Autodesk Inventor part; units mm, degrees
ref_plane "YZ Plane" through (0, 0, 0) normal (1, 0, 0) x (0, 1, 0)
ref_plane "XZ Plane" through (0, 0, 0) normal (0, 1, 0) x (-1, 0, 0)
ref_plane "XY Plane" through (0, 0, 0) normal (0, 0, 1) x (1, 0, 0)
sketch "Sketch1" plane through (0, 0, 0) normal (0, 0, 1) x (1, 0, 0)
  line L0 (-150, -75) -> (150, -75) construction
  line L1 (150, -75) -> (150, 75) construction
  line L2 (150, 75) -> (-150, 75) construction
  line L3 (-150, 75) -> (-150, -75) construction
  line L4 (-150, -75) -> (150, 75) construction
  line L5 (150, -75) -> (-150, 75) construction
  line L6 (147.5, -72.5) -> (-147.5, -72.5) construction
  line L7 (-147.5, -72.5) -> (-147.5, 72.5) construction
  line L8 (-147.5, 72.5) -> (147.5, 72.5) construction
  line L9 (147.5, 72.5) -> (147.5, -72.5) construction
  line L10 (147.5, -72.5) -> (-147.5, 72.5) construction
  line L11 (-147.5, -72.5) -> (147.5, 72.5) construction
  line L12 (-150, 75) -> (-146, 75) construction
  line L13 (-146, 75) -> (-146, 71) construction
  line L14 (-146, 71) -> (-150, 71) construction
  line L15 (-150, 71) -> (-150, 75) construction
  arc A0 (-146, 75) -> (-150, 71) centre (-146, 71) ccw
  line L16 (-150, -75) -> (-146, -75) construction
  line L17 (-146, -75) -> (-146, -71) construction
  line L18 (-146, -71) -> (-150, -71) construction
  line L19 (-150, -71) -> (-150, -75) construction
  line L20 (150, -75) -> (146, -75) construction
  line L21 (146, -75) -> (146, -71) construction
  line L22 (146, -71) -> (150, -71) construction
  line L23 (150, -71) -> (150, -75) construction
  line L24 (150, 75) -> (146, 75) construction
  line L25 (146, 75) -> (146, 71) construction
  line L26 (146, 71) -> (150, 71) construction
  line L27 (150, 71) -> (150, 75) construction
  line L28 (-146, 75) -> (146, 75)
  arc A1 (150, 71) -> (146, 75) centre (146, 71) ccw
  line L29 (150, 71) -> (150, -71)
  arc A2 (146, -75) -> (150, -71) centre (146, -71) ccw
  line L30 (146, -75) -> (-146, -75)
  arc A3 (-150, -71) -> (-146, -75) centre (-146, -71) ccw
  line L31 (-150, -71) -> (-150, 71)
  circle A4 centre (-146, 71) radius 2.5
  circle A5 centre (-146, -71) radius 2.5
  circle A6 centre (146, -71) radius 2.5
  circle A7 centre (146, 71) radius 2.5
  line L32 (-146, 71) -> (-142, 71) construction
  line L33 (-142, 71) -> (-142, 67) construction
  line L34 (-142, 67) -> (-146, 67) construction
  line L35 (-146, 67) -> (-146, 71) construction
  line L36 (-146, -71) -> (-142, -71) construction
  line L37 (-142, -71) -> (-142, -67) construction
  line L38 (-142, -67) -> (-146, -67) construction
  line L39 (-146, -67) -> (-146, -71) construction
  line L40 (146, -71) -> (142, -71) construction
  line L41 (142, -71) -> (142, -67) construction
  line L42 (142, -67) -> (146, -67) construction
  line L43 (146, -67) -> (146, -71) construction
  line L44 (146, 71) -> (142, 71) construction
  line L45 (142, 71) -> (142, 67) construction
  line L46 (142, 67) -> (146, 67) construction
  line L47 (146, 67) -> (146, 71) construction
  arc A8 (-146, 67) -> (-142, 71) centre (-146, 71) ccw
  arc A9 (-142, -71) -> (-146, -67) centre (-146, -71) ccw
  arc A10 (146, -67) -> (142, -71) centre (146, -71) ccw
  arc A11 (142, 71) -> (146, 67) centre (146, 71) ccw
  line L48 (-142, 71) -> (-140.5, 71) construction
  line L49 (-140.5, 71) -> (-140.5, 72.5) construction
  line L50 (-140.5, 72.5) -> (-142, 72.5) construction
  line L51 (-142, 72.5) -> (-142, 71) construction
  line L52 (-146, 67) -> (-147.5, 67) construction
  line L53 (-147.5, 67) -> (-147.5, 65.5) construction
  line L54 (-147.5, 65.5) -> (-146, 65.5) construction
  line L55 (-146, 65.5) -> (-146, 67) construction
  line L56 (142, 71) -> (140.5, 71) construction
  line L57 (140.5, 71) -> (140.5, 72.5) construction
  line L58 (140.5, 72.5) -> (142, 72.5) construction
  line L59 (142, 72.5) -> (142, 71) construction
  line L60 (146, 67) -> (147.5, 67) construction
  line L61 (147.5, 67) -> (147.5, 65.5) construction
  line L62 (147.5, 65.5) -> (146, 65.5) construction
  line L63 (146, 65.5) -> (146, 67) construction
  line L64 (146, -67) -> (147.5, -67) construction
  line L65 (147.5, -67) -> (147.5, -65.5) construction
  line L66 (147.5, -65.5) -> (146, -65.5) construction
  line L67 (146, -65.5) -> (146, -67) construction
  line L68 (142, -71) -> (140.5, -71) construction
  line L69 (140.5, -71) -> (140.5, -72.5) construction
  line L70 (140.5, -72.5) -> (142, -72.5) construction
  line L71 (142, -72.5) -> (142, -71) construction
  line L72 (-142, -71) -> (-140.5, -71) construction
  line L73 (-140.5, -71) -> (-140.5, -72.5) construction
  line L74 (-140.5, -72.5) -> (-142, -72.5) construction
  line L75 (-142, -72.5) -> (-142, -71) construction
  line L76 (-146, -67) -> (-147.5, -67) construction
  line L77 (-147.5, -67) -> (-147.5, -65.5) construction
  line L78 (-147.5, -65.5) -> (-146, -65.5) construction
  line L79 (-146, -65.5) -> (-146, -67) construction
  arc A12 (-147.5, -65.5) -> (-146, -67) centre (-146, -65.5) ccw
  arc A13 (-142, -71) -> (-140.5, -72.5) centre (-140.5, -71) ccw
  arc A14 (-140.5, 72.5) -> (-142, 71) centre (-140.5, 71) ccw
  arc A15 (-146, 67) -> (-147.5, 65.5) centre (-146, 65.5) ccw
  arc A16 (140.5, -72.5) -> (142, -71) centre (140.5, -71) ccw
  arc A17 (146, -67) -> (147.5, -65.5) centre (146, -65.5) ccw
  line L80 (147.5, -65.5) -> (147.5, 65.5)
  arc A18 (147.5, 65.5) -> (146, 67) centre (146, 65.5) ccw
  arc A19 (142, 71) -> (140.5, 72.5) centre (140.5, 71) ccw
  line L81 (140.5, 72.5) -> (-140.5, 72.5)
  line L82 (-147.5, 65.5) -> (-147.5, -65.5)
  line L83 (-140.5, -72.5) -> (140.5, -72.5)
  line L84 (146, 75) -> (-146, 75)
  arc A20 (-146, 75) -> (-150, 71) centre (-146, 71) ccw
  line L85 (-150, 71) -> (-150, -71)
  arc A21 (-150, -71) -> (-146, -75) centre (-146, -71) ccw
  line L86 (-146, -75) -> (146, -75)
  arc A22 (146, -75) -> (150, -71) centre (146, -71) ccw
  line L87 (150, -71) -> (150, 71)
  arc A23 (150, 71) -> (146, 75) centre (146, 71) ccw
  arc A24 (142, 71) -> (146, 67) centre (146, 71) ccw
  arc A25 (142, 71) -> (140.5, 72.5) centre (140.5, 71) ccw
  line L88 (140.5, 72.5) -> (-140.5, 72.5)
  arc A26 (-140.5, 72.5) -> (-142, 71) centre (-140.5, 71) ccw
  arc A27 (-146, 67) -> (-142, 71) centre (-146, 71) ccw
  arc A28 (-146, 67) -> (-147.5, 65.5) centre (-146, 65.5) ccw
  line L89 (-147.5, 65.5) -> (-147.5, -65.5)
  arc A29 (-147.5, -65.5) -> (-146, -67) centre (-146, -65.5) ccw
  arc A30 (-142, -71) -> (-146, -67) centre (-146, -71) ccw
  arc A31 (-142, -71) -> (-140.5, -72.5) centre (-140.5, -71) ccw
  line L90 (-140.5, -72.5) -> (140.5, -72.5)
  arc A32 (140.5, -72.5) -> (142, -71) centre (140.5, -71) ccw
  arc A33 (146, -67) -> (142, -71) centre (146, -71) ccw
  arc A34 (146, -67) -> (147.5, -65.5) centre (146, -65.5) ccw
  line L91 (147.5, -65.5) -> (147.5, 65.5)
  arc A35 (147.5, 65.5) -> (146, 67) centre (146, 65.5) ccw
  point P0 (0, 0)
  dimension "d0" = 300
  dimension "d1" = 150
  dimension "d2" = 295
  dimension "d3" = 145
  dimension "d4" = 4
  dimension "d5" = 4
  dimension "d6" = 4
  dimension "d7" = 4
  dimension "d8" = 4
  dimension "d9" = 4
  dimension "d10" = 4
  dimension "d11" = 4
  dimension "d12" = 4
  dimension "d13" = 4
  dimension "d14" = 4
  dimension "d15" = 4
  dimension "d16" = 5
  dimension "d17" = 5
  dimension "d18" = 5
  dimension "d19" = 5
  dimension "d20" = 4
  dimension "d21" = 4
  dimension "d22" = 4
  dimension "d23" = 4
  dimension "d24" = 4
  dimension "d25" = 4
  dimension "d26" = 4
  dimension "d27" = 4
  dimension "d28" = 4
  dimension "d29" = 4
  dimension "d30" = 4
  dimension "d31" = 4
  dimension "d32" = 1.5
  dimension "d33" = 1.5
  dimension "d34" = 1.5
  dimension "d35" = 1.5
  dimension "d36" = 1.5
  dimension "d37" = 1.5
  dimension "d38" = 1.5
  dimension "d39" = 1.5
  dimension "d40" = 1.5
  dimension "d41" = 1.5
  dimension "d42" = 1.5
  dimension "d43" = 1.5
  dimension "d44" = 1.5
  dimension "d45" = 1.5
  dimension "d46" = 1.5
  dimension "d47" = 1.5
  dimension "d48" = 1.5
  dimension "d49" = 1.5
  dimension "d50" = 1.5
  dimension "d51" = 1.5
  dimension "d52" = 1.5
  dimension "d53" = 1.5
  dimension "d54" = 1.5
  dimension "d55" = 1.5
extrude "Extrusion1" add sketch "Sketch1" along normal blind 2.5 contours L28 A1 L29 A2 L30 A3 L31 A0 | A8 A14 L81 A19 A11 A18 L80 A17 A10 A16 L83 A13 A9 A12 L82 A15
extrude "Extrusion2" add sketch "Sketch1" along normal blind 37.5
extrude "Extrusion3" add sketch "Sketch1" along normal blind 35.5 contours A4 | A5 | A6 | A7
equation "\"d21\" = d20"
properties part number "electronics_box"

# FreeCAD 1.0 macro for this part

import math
import FreeCAD as App
import Part
import Sketcher
Q = App.Units.Quantity

doc = App.newDocument("Part")
params = doc.addObject("Spreadsheet::Sheet", "Params")
for row, (alias, value) in enumerate([
    ("sketch1_diameter", "5 mm"),
    ("sketch1_radius", "4 mm"),
    ("sketch1_height", "142 mm"),
    ("pad1_length", "2.5 mm"),
    ("sketch2_diameter", "5 mm"),
    ("sketch2_radius", "4 mm"),
    ("sketch2_radius2", "1.5 mm"),
    ("sketch2_height", "142 mm"),
    ("pad2_length", "37.5 mm"),
    ("sketch3_diameter", "5 mm"),
    ("pad3_length", "35.5 mm"),
], start=1):
    params.set(f"A{row}", alias)
    params.set(f"B{row}", "=" + value)
    params.setAlias(f"B{row}", alias)

body = doc.addObject("PartDesign::Body", "Body")

sketch1 = body.newObject("Sketcher::SketchObject", "Sketch")
sketch1.AttachmentSupport = (doc.getObject("XY_Plane"), [""])
sketch1.MapMode = "FlatFace"
sketch1.addGeometry([
    Part.LineSegment(App.Vector(146, 75, 0), App.Vector(-146, 75, 0)),
    Part.ArcOfCircle(Part.Circle(App.Vector(-146, 71, 0), App.Vector(0, 0, 1), 4), math.radians(90), math.radians(180)),
    Part.LineSegment(App.Vector(-150, 71, 0), App.Vector(-150, -71, 0)),
    Part.ArcOfCircle(Part.Circle(App.Vector(-146, -71, 0), App.Vector(0, 0, 1), 4), math.radians(180), math.radians(270)),
    Part.LineSegment(App.Vector(-146, -75, 0), App.Vector(146, -75, 0)),
    Part.ArcOfCircle(Part.Circle(App.Vector(146, -71, 0), App.Vector(0, 0, 1), 4), math.radians(-90), math.radians(0)),
    Part.LineSegment(App.Vector(150, -71, 0), App.Vector(150, 71, 0)),
    Part.ArcOfCircle(Part.Circle(App.Vector(146, 71, 0), App.Vector(0, 0, 1), 4), math.radians(0), math.radians(90)),
    Part.Circle(App.Vector(-146, -71, 0), App.Vector(0, 0, 1), 2.5),
    Part.Circle(App.Vector(146, -71, 0), App.Vector(0, 0, 1), 2.5),
    Part.Circle(App.Vector(-146, 71, 0), App.Vector(0, 0, 1), 2.5),
    Part.Circle(App.Vector(146, 71, 0), App.Vector(0, 0, 1), 2.5),
], False)
sketch1.addConstraint([
    Sketcher.Constraint("Tangent", 0, 2, 1, 1),
    Sketcher.Constraint("Tangent", 1, 2, 2, 1),
    Sketcher.Constraint("Tangent", 2, 2, 3, 1),
    Sketcher.Constraint("Tangent", 3, 2, 4, 1),
    Sketcher.Constraint("Tangent", 4, 2, 5, 1),
    Sketcher.Constraint("Tangent", 5, 2, 6, 1),
    Sketcher.Constraint("Tangent", 6, 2, 7, 1),
    Sketcher.Constraint("Tangent", 7, 2, 0, 1),
    Sketcher.Constraint("Horizontal", 0),
    Sketcher.Constraint("Vertical", 2),
    Sketcher.Constraint("Horizontal", 4),
    Sketcher.Constraint("Vertical", 6),
    Sketcher.Constraint("Coincident", 8, 3, 3, 3),
    Sketcher.Constraint("Coincident", 9, 3, 5, 3),
    Sketcher.Constraint("Coincident", 10, 3, 1, 3),
    Sketcher.Constraint("Coincident", 11, 3, 7, 3),
    Sketcher.Constraint("Equal", 1, 3),
    Sketcher.Constraint("Equal", 3, 5),
    Sketcher.Constraint("Equal", 5, 7),
    Sketcher.Constraint("Equal", 8, 9),
    Sketcher.Constraint("Equal", 9, 10),
    Sketcher.Constraint("Equal", 10, 11),
    Sketcher.Constraint("Symmetric", 1, 3, 5, 3, -1, 1),
    Sketcher.Constraint("Diameter", 8, Q("5 mm")),
    Sketcher.Constraint("Radius", 1, Q("4 mm")),
    Sketcher.Constraint("DistanceX", 1, 2, -1, 1, Q("150 mm")),
    Sketcher.Constraint("DistanceY", 2, 2, 2, 1, Q("142 mm")),
])
sketch1.setExpression("Constraints[23]", "Params.sketch1_diameter")
sketch1.setExpression("Constraints[24]", "Params.sketch1_radius")
sketch1.setExpression("Constraints[26]", "Params.sketch1_height")
pad1 = body.newObject("PartDesign::Pad", "Pad")
pad1.Profile = sketch1
pad1.setExpression("Length", "Params.pad1_length")

sketch2 = body.newObject("Sketcher::SketchObject", "Sketch001")
sketch2.AttachmentSupport = (doc.getObject("XY_Plane"), [""])
sketch2.MapMode = "FlatFace"
sketch2.addGeometry([
    Part.LineSegment(App.Vector(146, 75, 0), App.Vector(-146, 75, 0)),
    Part.ArcOfCircle(Part.Circle(App.Vector(-146, 71, 0), App.Vector(0, 0, 1), 4), math.radians(90), math.radians(180)),
    Part.LineSegment(App.Vector(-150, 71, 0), App.Vector(-150, -71, 0)),
    Part.ArcOfCircle(Part.Circle(App.Vector(-146, -71, 0), App.Vector(0, 0, 1), 4), math.radians(180), math.radians(270)),
    Part.LineSegment(App.Vector(-146, -75, 0), App.Vector(146, -75, 0)),
    Part.ArcOfCircle(Part.Circle(App.Vector(146, -71, 0), App.Vector(0, 0, 1), 4), math.radians(-90), math.radians(0)),
    Part.LineSegment(App.Vector(150, -71, 0), App.Vector(150, 71, 0)),
    Part.ArcOfCircle(Part.Circle(App.Vector(146, 71, 0), App.Vector(0, 0, 1), 4), math.radians(0), math.radians(90)),
    Part.Circle(App.Vector(-146, -71, 0), App.Vector(0, 0, 1), 2.5),
    Part.Circle(App.Vector(146, -71, 0), App.Vector(0, 0, 1), 2.5),
    Part.Circle(App.Vector(-146, 71, 0), App.Vector(0, 0, 1), 2.5),
    Part.ArcOfCircle(Part.Circle(App.Vector(-146, 65.5, 0), App.Vector(0, 0, 1), 1.5), math.radians(90), math.radians(180)),
    Part.ArcOfCircle(Part.Circle(App.Vector(-146, 71, 0), App.Vector(0, 0, 1), 4), math.radians(-90), math.radians(0)),
    Part.ArcOfCircle(Part.Circle(App.Vector(-140.5, 71, 0), App.Vector(0, 0, 1), 1.5), math.radians(90), math.radians(180)),
    Part.LineSegment(App.Vector(-140.5, 72.5, 0), App.Vector(140.5, 72.5, 0)),
    Part.ArcOfCircle(Part.Circle(App.Vector(140.5, 71, 0), App.Vector(0, 0, 1), 1.5), math.radians(0), math.radians(90)),
    Part.ArcOfCircle(Part.Circle(App.Vector(146, 71, 0), App.Vector(0, 0, 1), 4), math.radians(180), math.radians(270)),
    Part.ArcOfCircle(Part.Circle(App.Vector(146, 65.5, 0), App.Vector(0, 0, 1), 1.5), math.radians(0), math.radians(90)),
    Part.LineSegment(App.Vector(147.5, 65.5, 0), App.Vector(147.5, -65.5, 0)),
    Part.ArcOfCircle(Part.Circle(App.Vector(146, -65.5, 0), App.Vector(0, 0, 1), 1.5), math.radians(-90), math.radians(0)),
    Part.ArcOfCircle(Part.Circle(App.Vector(146, -71, 0), App.Vector(0, 0, 1), 4), math.radians(90), math.radians(180)),
    Part.ArcOfCircle(Part.Circle(App.Vector(140.5, -71, 0), App.Vector(0, 0, 1), 1.5), math.radians(-90), math.radians(0)),
    Part.LineSegment(App.Vector(140.5, -72.5, 0), App.Vector(-140.5, -72.5, 0)),
    Part.ArcOfCircle(Part.Circle(App.Vector(-140.5, -71, 0), App.Vector(0, 0, 1), 1.5), math.radians(180), math.radians(270)),
    Part.ArcOfCircle(Part.Circle(App.Vector(-146, -71, 0), App.Vector(0, 0, 1), 4), math.radians(0), math.radians(90)),
    Part.ArcOfCircle(Part.Circle(App.Vector(-146, -65.5, 0), App.Vector(0, 0, 1), 1.5), math.radians(180), math.radians(270)),
    Part.LineSegment(App.Vector(-147.5, -65.5, 0), App.Vector(-147.5, 65.5, 0)),
    Part.Circle(App.Vector(146, 71, 0), App.Vector(0, 0, 1), 2.5),
], False)
sketch2.addConstraint([
    Sketcher.Constraint("Tangent", 0, 2, 1, 1),
    Sketcher.Constraint("Tangent", 1, 2, 2, 1),
    Sketcher.Constraint("Tangent", 2, 2, 3, 1),
    Sketcher.Constraint("Tangent", 3, 2, 4, 1),
    Sketcher.Constraint("Tangent", 4, 2, 5, 1),
    Sketcher.Constraint("Tangent", 5, 2, 6, 1),
    Sketcher.Constraint("Tangent", 6, 2, 7, 1),
    Sketcher.Constraint("Tangent", 7, 2, 0, 1),
    Sketcher.Constraint("Tangent", 11, 1, 12, 1),
    Sketcher.Constraint("Tangent", 12, 2, 13, 2),
    Sketcher.Constraint("Tangent", 13, 1, 14, 1),
    Sketcher.Constraint("Tangent", 14, 2, 15, 2),
    Sketcher.Constraint("Tangent", 15, 1, 16, 1),
    Sketcher.Constraint("Tangent", 16, 2, 17, 2),
    Sketcher.Constraint("Tangent", 17, 1, 18, 1),
    Sketcher.Constraint("Tangent", 18, 2, 19, 2),
    Sketcher.Constraint("Tangent", 19, 1, 20, 1),
    Sketcher.Constraint("Tangent", 20, 2, 21, 2),
    Sketcher.Constraint("Tangent", 21, 1, 22, 1),
    Sketcher.Constraint("Tangent", 22, 2, 23, 2),
    Sketcher.Constraint("Tangent", 23, 1, 24, 1),
    Sketcher.Constraint("Tangent", 24, 2, 25, 2),
    Sketcher.Constraint("Tangent", 25, 1, 26, 1),
    Sketcher.Constraint("Tangent", 26, 2, 11, 2),
    Sketcher.Constraint("Horizontal", 0),
    Sketcher.Constraint("Vertical", 2),
    Sketcher.Constraint("Horizontal", 4),
    Sketcher.Constraint("Vertical", 6),
    Sketcher.Constraint("Horizontal", 14),
    Sketcher.Constraint("Vertical", 18),
    Sketcher.Constraint("Horizontal", 22),
    Sketcher.Constraint("Vertical", 26),
    Sketcher.Constraint("Coincident", 8, 3, 3, 3),
    Sketcher.Constraint("Coincident", 9, 3, 5, 3),
    Sketcher.Constraint("Coincident", 10, 3, 1, 3),
    Sketcher.Constraint("Coincident", 12, 3, 1, 3),
    Sketcher.Constraint("Coincident", 16, 3, 7, 3),
    Sketcher.Constraint("Coincident", 20, 3, 5, 3),
    Sketcher.Constraint("Coincident", 24, 3, 3, 3),
    Sketcher.Constraint("Coincident", 27, 3, 7, 3),
    Sketcher.Constraint("Equal", 1, 3),
    Sketcher.Constraint("Equal", 3, 5),
    Sketcher.Constraint("Equal", 5, 7),
    Sketcher.Constraint("Equal", 8, 9),
    Sketcher.Constraint("Equal", 9, 10),
    Sketcher.Constraint("Equal", 7, 12),
    Sketcher.Constraint("Equal", 11, 13),
    Sketcher.Constraint("Equal", 13, 15),
    Sketcher.Constraint("Equal", 12, 16),
    Sketcher.Constraint("Equal", 15, 17),
    Sketcher.Constraint("Equal", 17, 19),
    Sketcher.Constraint("Equal", 16, 20),
    Sketcher.Constraint("Equal", 19, 21),
    Sketcher.Constraint("Equal", 21, 23),
    Sketcher.Constraint("Equal", 20, 24),
    Sketcher.Constraint("Equal", 23, 25),
    Sketcher.Constraint("Equal", 10, 27),
    Sketcher.Constraint("Symmetric", 1, 3, 5, 3, -1, 1),
    Sketcher.Constraint("Horizontal", 12, 3, 13, 3),
    Sketcher.Constraint("Horizontal", 20, 3, 21, 3),
    Sketcher.Constraint("Vertical", 10, 3, 11, 3),
    Sketcher.Constraint("Vertical", 16, 3, 17, 3),
    Sketcher.Constraint("Diameter", 8, Q("5 mm")),
    Sketcher.Constraint("Radius", 1, Q("4 mm")),
    Sketcher.Constraint("Radius", 11, Q("1.5 mm")),
    Sketcher.Constraint("DistanceX", 1, 2, -1, 1, Q("150 mm")),
    Sketcher.Constraint("DistanceY", 2, 2, 2, 1, Q("142 mm")),
])
sketch2.setExpression("Constraints[62]", "Params.sketch2_diameter")
sketch2.setExpression("Constraints[63]", "Params.sketch2_radius")
sketch2.setExpression("Constraints[64]", "Params.sketch2_radius2")
sketch2.setExpression("Constraints[66]", "Params.sketch2_height")
pad2 = body.newObject("PartDesign::Pad", "Pad001")
pad2.Profile = sketch2
pad2.setExpression("Length", "Params.pad2_length")

sketch3 = body.newObject("Sketcher::SketchObject", "Sketch002")
sketch3.AttachmentSupport = (doc.getObject("XY_Plane"), [""])
sketch3.MapMode = "FlatFace"
sketch3.addGeometry([
    Part.Circle(App.Vector(-146, 71, 0), App.Vector(0, 0, 1), 2.5),
    Part.Circle(App.Vector(-146, -71, 0), App.Vector(0, 0, 1), 2.5),
    Part.Circle(App.Vector(146, -71, 0), App.Vector(0, 0, 1), 2.5),
    Part.Circle(App.Vector(146, 71, 0), App.Vector(0, 0, 1), 2.5),
], False)
sketch3.addConstraint([
    Sketcher.Constraint("Equal", 0, 1),
    Sketcher.Constraint("Equal", 1, 2),
    Sketcher.Constraint("Equal", 2, 3),
    Sketcher.Constraint("Symmetric", 0, 3, 2, 3, -1, 1),
    Sketcher.Constraint("Symmetric", 1, 3, 3, 3, -1, 1),
    Sketcher.Constraint("Symmetric", 1, 3, 2, 3, -2),
    Sketcher.Constraint("Diameter", 0, Q("5 mm")),
    Sketcher.Constraint("DistanceX", 0, 3, -1, 1, Q("146 mm")),
    Sketcher.Constraint("DistanceY", -1, 1, 0, 3, Q("71 mm")),
])
sketch3.setExpression("Constraints[6]", "Params.sketch3_diameter")
pad3 = body.newObject("PartDesign::Pad", "Pad002")
pad3.Profile = sketch3
pad3.setExpression("Length", "Params.pad3_length")

doc.recompute()
